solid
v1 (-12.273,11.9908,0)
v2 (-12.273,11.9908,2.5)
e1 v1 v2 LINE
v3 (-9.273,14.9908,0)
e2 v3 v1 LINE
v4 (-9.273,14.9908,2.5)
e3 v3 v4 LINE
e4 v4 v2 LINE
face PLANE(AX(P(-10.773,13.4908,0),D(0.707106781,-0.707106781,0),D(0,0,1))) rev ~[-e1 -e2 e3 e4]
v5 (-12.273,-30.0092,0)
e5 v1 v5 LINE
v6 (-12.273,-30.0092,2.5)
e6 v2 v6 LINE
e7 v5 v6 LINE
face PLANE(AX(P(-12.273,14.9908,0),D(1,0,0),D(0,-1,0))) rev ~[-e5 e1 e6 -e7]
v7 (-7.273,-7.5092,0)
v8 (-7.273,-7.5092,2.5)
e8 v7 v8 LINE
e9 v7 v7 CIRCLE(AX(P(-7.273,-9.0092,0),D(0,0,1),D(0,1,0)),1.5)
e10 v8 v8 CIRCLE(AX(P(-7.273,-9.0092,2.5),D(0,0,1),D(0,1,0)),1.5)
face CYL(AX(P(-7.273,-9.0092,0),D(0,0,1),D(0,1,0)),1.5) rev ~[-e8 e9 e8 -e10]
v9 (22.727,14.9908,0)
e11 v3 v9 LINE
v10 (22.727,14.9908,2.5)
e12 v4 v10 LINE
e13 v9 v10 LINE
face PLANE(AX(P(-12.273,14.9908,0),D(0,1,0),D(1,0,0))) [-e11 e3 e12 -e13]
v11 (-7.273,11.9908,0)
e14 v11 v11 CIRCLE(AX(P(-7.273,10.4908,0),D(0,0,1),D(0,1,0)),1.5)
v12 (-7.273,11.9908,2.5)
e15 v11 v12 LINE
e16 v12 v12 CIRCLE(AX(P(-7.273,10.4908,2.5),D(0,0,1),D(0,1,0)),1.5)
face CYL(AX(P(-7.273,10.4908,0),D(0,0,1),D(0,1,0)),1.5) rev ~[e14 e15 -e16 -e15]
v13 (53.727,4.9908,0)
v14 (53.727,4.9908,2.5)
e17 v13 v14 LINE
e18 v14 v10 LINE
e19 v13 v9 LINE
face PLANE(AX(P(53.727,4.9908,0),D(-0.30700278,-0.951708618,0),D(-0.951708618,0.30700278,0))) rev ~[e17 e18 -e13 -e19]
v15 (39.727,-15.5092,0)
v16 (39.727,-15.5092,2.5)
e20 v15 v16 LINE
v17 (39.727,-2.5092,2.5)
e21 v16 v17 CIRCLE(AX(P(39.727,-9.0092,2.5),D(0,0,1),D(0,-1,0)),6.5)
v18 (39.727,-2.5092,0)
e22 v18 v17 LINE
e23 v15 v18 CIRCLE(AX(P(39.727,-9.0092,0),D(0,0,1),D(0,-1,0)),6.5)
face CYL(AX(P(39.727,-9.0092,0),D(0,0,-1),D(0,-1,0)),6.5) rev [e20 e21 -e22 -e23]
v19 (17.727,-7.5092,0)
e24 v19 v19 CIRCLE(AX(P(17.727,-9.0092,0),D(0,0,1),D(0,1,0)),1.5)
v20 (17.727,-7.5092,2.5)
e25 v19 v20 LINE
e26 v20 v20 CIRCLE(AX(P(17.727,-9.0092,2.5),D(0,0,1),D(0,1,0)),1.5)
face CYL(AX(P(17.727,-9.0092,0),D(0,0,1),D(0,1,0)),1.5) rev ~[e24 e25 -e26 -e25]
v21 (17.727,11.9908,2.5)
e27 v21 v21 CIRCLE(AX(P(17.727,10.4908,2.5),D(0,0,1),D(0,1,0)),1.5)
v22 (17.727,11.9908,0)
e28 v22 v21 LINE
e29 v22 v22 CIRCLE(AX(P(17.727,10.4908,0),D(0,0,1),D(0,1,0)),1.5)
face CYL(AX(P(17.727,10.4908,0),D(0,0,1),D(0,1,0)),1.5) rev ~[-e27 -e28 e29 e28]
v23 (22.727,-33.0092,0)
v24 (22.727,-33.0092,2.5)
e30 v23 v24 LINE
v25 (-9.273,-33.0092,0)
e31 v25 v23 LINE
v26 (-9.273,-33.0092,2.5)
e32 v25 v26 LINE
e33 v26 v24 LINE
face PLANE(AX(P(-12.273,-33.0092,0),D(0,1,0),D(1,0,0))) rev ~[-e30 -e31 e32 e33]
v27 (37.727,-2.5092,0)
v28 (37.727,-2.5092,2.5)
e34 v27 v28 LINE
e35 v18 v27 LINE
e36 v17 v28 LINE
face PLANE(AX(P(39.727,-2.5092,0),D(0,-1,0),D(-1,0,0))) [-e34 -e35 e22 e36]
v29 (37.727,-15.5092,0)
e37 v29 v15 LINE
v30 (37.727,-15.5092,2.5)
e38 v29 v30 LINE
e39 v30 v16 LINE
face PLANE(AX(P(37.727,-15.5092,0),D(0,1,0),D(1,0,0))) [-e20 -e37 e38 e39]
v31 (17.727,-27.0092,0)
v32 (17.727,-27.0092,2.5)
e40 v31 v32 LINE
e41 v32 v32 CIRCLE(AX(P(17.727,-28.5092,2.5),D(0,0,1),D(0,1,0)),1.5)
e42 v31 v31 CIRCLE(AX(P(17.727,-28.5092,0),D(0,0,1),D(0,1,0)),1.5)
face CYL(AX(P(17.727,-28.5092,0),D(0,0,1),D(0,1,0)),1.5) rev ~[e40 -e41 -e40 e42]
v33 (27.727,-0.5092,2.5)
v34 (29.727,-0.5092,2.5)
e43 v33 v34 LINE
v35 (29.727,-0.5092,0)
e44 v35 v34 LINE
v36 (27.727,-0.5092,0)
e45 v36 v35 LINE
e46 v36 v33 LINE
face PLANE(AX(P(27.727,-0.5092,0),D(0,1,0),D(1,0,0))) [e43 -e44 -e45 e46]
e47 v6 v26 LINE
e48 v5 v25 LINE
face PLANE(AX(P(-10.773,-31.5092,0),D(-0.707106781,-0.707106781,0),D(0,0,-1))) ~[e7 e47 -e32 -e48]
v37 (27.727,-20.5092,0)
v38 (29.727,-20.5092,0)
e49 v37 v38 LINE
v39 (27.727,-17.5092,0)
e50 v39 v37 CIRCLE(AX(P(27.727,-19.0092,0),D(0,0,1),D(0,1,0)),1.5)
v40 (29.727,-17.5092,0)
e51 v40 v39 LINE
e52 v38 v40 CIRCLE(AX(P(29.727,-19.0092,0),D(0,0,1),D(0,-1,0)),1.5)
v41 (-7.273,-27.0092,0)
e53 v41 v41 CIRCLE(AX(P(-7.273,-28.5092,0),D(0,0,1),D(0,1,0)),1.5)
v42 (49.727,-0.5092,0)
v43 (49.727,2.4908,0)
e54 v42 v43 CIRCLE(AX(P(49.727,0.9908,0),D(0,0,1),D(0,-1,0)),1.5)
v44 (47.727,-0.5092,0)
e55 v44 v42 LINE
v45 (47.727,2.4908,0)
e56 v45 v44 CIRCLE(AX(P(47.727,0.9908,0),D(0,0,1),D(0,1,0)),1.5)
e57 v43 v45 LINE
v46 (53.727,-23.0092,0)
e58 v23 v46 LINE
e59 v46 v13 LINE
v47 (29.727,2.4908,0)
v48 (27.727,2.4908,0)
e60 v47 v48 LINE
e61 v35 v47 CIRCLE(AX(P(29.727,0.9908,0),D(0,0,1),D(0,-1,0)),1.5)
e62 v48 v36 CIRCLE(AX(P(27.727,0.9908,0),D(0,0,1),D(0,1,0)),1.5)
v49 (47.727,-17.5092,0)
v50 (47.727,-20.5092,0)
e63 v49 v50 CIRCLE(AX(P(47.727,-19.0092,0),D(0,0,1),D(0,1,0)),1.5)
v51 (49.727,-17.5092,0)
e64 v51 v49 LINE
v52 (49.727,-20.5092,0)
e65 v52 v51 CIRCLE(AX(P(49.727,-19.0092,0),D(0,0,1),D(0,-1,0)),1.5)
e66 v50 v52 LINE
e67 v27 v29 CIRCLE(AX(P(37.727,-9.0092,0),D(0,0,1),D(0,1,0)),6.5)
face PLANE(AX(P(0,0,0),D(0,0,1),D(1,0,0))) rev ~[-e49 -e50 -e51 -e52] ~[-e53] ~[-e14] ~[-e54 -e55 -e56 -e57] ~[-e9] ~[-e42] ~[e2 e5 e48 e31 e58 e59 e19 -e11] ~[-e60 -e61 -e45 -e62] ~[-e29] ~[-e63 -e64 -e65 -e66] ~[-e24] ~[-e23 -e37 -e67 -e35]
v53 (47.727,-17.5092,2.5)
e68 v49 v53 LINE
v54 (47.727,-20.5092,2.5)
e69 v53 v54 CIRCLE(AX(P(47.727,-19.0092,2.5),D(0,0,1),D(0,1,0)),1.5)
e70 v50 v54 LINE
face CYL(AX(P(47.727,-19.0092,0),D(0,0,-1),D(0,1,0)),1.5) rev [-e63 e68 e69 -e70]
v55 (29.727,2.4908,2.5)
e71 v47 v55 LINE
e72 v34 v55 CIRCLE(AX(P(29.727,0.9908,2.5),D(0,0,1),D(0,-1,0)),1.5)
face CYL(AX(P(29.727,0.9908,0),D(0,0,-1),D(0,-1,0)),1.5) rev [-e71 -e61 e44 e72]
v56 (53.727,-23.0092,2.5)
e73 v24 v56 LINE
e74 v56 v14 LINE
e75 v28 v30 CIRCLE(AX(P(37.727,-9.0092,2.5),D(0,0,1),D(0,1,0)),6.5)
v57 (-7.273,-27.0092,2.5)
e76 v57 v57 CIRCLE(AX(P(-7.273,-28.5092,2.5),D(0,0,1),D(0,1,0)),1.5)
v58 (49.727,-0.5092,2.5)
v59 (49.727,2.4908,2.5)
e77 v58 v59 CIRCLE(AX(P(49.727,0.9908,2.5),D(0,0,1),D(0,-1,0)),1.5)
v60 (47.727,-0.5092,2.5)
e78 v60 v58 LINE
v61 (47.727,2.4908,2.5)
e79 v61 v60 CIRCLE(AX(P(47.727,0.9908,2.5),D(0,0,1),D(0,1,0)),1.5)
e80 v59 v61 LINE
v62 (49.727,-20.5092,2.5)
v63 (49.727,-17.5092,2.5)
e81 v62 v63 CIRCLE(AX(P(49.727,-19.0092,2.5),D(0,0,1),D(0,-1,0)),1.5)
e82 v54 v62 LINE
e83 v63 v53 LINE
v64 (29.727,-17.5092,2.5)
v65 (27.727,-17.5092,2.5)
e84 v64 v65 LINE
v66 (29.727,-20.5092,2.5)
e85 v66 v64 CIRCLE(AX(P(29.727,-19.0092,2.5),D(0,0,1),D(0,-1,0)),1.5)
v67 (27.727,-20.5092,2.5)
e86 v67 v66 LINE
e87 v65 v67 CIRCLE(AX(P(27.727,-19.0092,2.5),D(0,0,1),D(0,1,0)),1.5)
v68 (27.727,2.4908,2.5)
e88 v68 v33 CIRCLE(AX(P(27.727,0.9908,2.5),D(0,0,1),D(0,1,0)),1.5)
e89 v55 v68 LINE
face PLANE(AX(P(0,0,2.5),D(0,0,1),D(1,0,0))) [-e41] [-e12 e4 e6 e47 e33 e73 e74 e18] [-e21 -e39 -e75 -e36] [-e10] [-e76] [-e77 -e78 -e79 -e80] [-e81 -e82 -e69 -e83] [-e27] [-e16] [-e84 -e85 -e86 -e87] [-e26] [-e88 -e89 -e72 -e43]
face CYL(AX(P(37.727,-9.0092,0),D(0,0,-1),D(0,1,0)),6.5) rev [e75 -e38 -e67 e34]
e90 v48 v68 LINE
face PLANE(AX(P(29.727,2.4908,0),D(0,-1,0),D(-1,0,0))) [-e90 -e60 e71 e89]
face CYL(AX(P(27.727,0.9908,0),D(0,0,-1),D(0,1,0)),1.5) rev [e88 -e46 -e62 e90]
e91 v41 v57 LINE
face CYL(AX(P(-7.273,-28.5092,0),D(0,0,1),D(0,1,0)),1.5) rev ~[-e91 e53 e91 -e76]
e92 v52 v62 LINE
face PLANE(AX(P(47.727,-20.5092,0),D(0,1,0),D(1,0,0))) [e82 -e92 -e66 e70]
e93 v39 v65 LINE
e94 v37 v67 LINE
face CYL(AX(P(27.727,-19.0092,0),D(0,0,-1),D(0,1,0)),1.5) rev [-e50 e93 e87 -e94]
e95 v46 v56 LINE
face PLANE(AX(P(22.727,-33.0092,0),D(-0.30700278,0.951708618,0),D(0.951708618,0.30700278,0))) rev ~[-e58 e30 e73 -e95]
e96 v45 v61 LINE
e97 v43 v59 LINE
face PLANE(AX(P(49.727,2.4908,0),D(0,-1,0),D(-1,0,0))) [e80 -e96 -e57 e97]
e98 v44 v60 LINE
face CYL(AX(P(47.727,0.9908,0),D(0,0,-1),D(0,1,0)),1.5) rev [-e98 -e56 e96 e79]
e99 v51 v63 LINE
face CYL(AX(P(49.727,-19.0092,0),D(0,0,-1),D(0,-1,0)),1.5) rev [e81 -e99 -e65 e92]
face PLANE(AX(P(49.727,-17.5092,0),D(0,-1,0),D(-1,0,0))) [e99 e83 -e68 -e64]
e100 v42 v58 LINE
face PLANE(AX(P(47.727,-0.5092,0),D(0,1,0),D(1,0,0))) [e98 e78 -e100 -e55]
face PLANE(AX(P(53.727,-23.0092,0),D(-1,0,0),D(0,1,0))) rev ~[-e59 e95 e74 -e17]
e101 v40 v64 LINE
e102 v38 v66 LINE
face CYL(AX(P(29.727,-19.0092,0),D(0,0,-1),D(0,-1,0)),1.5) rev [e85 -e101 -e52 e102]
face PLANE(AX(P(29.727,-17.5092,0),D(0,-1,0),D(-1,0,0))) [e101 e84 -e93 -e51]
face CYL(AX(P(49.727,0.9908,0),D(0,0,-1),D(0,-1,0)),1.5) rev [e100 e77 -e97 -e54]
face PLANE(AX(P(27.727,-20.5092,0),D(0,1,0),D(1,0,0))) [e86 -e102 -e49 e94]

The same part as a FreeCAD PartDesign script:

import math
import FreeCAD as App
import Part
import Sketcher


def edges_at(feature, points):
    """Names of the edges that pass closest to the given points."""
    edges = feature.Shape.Edges
    near = lambda p: min(range(len(edges)), key=lambda i: edges[i].distToShape(Part.Vertex(*p))[0])
    return sorted({f"Edge{near(p) + 1}" for p in points})


def add_polygon(sketch, points):
    """Adds a closed chain of lines whose ends are joined by coincident constraints."""
    first, n = sketch.GeometryCount, len(points)
    for a, b in zip(points, points[1:] + points[:1]):
        sketch.addGeometry(Part.LineSegment(App.Vector(*a, 0), App.Vector(*b, 0)), False)
    for i in range(n):
        sketch.addConstraint(Sketcher.Constraint("Coincident", first + i, 2, first + (i + 1) % n, 1))

doc = App.newDocument("Part")
body = doc.addObject("PartDesign::Body", "Body")

# Sketch on XY plane
sketch1 = body.newObject("Sketcher::SketchObject", "Sketch")
sketch1.AttachmentSupport = (doc.getObject("XY_Plane"), [""])
sketch1.MapMode = "FlatFace"
add_polygon(sketch1, [(22.7, 15), (-12.3, 15), (-12.3, -33), (22.7, -33), (53.7, -23), (53.7, 5)])  # lines 0-5
sketch1.addGeometry(Part.LineSegment(App.Vector(49.7, -0.5, 0), App.Vector(47.7, -0.5, 0)), False)  # 6
sketch1.addGeometry(Part.ArcOfCircle(Part.Circle(App.Vector(47.7, 1, 0), App.Vector(0, 0, 1), 1.5), math.radians(90), math.radians(270)), False)  # 7
sketch1.addGeometry(Part.LineSegment(App.Vector(47.7, 2.5, 0), App.Vector(49.7, 2.5, 0)), False)  # 8
sketch1.addGeometry(Part.ArcOfCircle(Part.Circle(App.Vector(49.7, 1, 0), App.Vector(0, 0, 1), 1.5), math.radians(-90), math.radians(90)), False)  # 9
sketch1.addGeometry(Part.LineSegment(App.Vector(27.7, -17.5, 0), App.Vector(29.7, -17.5, 0)), False)  # 10
sketch1.addGeometry(Part.ArcOfCircle(Part.Circle(App.Vector(29.7, -19, 0), App.Vector(0, 0, 1), 1.5), math.radians(-90), math.radians(90)), False)  # 11
sketch1.addGeometry(Part.LineSegment(App.Vector(29.7, -20.5, 0), App.Vector(27.7, -20.5, 0)), False)  # 12
sketch1.addGeometry(Part.ArcOfCircle(Part.Circle(App.Vector(27.7, -19, 0), App.Vector(0, 0, 1), 1.5), math.radians(90), math.radians(270)), False)  # 13
sketch1.addGeometry(Part.LineSegment(App.Vector(47.7, -17.5, 0), App.Vector(49.7, -17.5, 0)), False)  # 14
sketch1.addGeometry(Part.ArcOfCircle(Part.Circle(App.Vector(49.7, -19, 0), App.Vector(0, 0, 1), 1.5), math.radians(-90), math.radians(90)), False)  # 15
sketch1.addGeometry(Part.LineSegment(App.Vector(49.7, -20.5, 0), App.Vector(47.7, -20.5, 0)), False)  # 16
sketch1.addGeometry(Part.ArcOfCircle(Part.Circle(App.Vector(47.7, -19, 0), App.Vector(0, 0, 1), 1.5), math.radians(90), math.radians(270)), False)  # 17
sketch1.addGeometry(Part.LineSegment(App.Vector(27.7, 2.5, 0), App.Vector(29.7, 2.5, 0)), False)  # 18
sketch1.addGeometry(Part.ArcOfCircle(Part.Circle(App.Vector(29.7, 1, 0), App.Vector(0, 0, 1), 1.5), math.radians(-90), math.radians(90)), False)  # 19
sketch1.addGeometry(Part.LineSegment(App.Vector(29.7, -0.5, 0), App.Vector(27.7, -0.5, 0)), False)  # 20
sketch1.addGeometry(Part.ArcOfCircle(Part.Circle(App.Vector(27.7, 1, 0), App.Vector(0, 0, 1), 1.5), math.radians(90), math.radians(270)), False)  # 21
sketch1.addGeometry(Part.LineSegment(App.Vector(37.7, -2.5, 0), App.Vector(39.7, -2.5, 0)), False)  # 22
sketch1.addGeometry(Part.ArcOfCircle(Part.Circle(App.Vector(39.7, -9, 0), App.Vector(0, 0, 1), 6.5), math.radians(-90), math.radians(90)), False)  # 23
sketch1.addGeometry(Part.LineSegment(App.Vector(39.7, -15.5, 0), App.Vector(37.7, -15.5, 0)), False)  # 24
sketch1.addGeometry(Part.ArcOfCircle(Part.Circle(App.Vector(37.7, -9, 0), App.Vector(0, 0, 1), 6.5), math.radians(90), math.radians(270)), False)  # 25
sketch1.addConstraint([
    Sketcher.Constraint("Tangent", 6, 2, 7, 2),
    Sketcher.Constraint("Tangent", 7, 1, 8, 1),
    Sketcher.Constraint("Tangent", 8, 2, 9, 2),
    Sketcher.Constraint("Tangent", 9, 1, 6, 1),
    Sketcher.Constraint("Tangent", 10, 2, 11, 2),
    Sketcher.Constraint("Tangent", 11, 1, 12, 1),
    Sketcher.Constraint("Tangent", 12, 2, 13, 2),
    Sketcher.Constraint("Tangent", 13, 1, 10, 1),
    Sketcher.Constraint("Tangent", 14, 2, 15, 2),
    Sketcher.Constraint("Tangent", 15, 1, 16, 1),
    Sketcher.Constraint("Tangent", 16, 2, 17, 2),
    Sketcher.Constraint("Tangent", 17, 1, 14, 1),
    Sketcher.Constraint("Tangent", 18, 2, 19, 2),
    Sketcher.Constraint("Tangent", 19, 1, 20, 1),
    Sketcher.Constraint("Tangent", 20, 2, 21, 2),
    Sketcher.Constraint("Tangent", 21, 1, 18, 1),
    Sketcher.Constraint("Tangent", 22, 2, 23, 2),
    Sketcher.Constraint("Tangent", 23, 1, 24, 1),
    Sketcher.Constraint("Tangent", 24, 2, 25, 2),
    Sketcher.Constraint("Tangent", 25, 1, 22, 1),
    Sketcher.Constraint("Horizontal", 0),
    Sketcher.Constraint("Vertical", 1),
    Sketcher.Constraint("Horizontal", 2),
    Sketcher.Constraint("Vertical", 4),
    Sketcher.Constraint("Horizontal", 6),
    Sketcher.Constraint("Horizontal", 8),
    Sketcher.Constraint("Horizontal", 10),
    Sketcher.Constraint("Horizontal", 12),
    Sketcher.Constraint("Horizontal", 14),
    Sketcher.Constraint("Horizontal", 16),
    Sketcher.Constraint("Horizontal", 18),
    Sketcher.Constraint("Horizontal", 20),
    Sketcher.Constraint("Horizontal", 22),
    Sketcher.Constraint("Horizontal", 24),
    Sketcher.Constraint("Equal", 9, 11),
    Sketcher.Constraint("Equal", 13, 15),
    Sketcher.Constraint("Equal", 17, 19),
    Sketcher.Constraint("Horizontal", 13, 3, 15, 3),
    Sketcher.Constraint("Horizontal", 9, 3, 19, 3),
    Sketcher.Constraint("Vertical", 9, 3, 15, 3),
    Sketcher.Constraint("Vertical", 7, 3, 17, 3),
    Sketcher.Constraint("Vertical", 11, 3, 19, 3),
    Sketcher.Constraint("Vertical", 13, 3, 21, 3),
    Sketcher.Constraint("Vertical", 2, 2, 5, 2),
    Sketcher.Constraint("Equal", 8, 10),
    Sketcher.Constraint("Equal", 20, 22),
    Sketcher.Constraint("Equal", 3, 5),
    Sketcher.Constraint("Radius", 7, 1.5),
    Sketcher.Constraint("Radius", 23, 6.5),
    Sketcher.Constraint("DistanceX", 0, 2, 0, 1, 35.0),
    Sketcher.Constraint("DistanceX", 6, 2, 6, 1, 2.0),
    Sketcher.Constraint("DistanceY", 1, 2, 1, 1, 48.0),
    Sketcher.Constraint("DistanceY", 4, 1, 4, 2, 28.0),
    Sketcher.Constraint("DistanceY", 11, 3, 7, 3, 20.0),
    Sketcher.Constraint("DistanceX", 11, 3, 9, 3, 20.0),
    Sketcher.Constraint("DistanceY", 23, 3, 7, 3, 10.0),
    Sketcher.Constraint("DistanceX", 11, 3, 23, 3, 10.0),
    Sketcher.Constraint("DistanceY", 25, 3, 0, 2, 24.0),
    Sketcher.Constraint("DistanceX", 2, 2, 13, 3, 5.0),
    Sketcher.Constraint("DistanceX", 15, 3, 3, 2, 4.0),
    Sketcher.Constraint("DistanceX", -1, 1, 7, 3, 47.727),
    Sketcher.Constraint("DistanceY", -1, 1, 7, 3, 0.9908),
])
pad1 = body.newObject("PartDesign::Pad", "Pad")
pad1.Profile = sketch1
pad1.Length = 2.5

# Sketch on XY plane
sketch2 = body.newObject("Sketcher::SketchObject", "Sketch001")
sketch2.AttachmentSupport = (doc.getObject("XY_Plane"), [""])
sketch2.MapMode = "FlatFace"
sketch2.addGeometry([
    Part.Circle(App.Vector(-7.3, 10.5, 0), App.Vector(0, 0, 1), 1.5),  # 0
    Part.Circle(App.Vector(-7.3, -9, 0), App.Vector(0, 0, 1), 1.5),  # 1
    Part.Circle(App.Vector(-7.3, -28.5, 0), App.Vector(0, 0, 1), 1.5),  # 2
    Part.Circle(App.Vector(17.7, 10.5, 0), App.Vector(0, 0, 1), 1.5),  # 3
    Part.Circle(App.Vector(17.7, -9, 0), App.Vector(0, 0, 1), 1.5),  # 4
    Part.Circle(App.Vector(17.7, -28.5, 0), App.Vector(0, 0, 1), 1.5),  # 5
], False)
sketch2.addConstraint([
    Sketcher.Constraint("Equal", 0, 1),
    Sketcher.Constraint("Equal", 1, 2),
    Sketcher.Constraint("Equal", 2, 3),
    Sketcher.Constraint("Equal", 3, 4),
    Sketcher.Constraint("Equal", 4, 5),
    Sketcher.Constraint("Horizontal", 0, 3, 3, 3),
    Sketcher.Constraint("Horizontal", 1, 3, 4, 3),
    Sketcher.Constraint("Horizontal", 2, 3, 5, 3),
    Sketcher.Constraint("Vertical", 0, 3, 1, 3),
    Sketcher.Constraint("Vertical", 1, 3, 2, 3),
    Sketcher.Constraint("Vertical", 3, 3, 4, 3),
    Sketcher.Constraint("Vertical", 4, 3, 5, 3),
    Sketcher.Constraint("Diameter", 0, 3.0),
    Sketcher.Constraint("DistanceY", 2, 3, 0, 3, 39.0),
    Sketcher.Constraint("DistanceX", 0, 3, 3, 3, 25.0),
    Sketcher.Constraint("DistanceY", 1, 3, 0, 3, 19.5),
    Sketcher.Constraint("DistanceX", 0, 3, -1, 1, 7.273),
    Sketcher.Constraint("DistanceY", -1, 1, 0, 3, 10.4908),
])
doc.recompute()
hole = body.newObject("PartDesign::Hole", "Hole")
hole.Profile = sketch2
hole.ThreadType = "None"
hole.Diameter = 3
hole.DepthType = "ThroughAll"
hole.Reversed = True
doc.recompute()

chamfer = body.newObject("PartDesign::Chamfer", "Chamfer")
chamfer.Base = (hole, edges_at(hole, [(-12.273, -33.009, 1.25), (-12.273, 14.991, 1.25)]))
chamfer.Size = 3

doc.recompute()
